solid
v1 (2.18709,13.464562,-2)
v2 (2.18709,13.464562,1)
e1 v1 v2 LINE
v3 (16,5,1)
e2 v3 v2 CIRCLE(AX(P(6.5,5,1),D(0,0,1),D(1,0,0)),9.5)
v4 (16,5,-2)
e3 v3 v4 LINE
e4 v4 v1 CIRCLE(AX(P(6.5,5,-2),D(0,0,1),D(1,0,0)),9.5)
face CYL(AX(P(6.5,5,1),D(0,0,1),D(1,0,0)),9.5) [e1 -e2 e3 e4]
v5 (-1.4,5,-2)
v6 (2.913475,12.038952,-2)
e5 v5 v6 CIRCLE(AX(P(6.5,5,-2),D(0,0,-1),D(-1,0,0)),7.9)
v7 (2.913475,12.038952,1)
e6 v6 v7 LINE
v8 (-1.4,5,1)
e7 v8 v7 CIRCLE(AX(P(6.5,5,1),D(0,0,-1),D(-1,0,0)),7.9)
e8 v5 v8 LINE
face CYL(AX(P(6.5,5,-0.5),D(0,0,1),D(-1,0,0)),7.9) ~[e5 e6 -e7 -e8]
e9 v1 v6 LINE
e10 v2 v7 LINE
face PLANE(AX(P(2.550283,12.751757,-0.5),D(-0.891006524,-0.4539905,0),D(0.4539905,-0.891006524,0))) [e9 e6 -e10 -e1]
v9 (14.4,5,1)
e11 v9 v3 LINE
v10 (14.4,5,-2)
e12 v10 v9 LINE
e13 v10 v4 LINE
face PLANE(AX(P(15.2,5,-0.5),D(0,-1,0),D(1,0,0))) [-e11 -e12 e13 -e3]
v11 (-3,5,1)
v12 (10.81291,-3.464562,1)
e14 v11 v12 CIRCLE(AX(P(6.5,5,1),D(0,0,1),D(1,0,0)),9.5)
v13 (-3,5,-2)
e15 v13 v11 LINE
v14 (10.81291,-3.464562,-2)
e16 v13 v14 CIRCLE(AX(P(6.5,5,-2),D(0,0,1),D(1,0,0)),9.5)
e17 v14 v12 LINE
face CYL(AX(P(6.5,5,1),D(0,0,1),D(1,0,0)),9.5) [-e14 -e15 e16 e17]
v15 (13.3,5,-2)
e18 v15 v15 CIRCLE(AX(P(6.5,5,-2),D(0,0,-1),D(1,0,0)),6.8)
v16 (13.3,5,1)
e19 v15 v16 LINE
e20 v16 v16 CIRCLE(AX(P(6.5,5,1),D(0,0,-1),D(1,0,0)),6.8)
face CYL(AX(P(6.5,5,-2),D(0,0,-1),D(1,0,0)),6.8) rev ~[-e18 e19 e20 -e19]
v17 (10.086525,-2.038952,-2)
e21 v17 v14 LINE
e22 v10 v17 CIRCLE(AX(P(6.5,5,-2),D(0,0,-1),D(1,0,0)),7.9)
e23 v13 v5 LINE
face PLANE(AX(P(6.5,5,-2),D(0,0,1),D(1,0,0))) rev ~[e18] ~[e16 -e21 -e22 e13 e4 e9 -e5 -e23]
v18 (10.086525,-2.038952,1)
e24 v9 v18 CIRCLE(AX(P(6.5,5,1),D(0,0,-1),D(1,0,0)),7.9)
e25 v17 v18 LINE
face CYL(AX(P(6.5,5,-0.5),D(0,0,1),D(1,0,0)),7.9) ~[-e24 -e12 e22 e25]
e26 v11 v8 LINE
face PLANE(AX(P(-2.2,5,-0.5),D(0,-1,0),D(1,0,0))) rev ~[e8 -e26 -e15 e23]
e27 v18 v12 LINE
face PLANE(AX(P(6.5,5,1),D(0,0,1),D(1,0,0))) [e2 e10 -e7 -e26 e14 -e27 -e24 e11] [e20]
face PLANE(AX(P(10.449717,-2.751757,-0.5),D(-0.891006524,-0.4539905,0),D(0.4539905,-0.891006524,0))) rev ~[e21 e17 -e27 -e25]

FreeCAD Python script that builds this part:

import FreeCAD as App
import Part
import Sketcher


def add_polygon(sketch, points):
    """Adds a closed chain of lines whose ends are joined by coincident constraints."""
    first, n = sketch.GeometryCount, len(points)
    for a, b in zip(points, points[1:] + points[:1]):
        sketch.addGeometry(Part.LineSegment(App.Vector(*a, 0), App.Vector(*b, 0)), False)
    for i in range(n):
        sketch.addConstraint(Sketcher.Constraint("Coincident", first + i, 2, first + (i + 1) % n, 1))

doc = App.newDocument("Part")
body = doc.addObject("PartDesign::Body", "Body")

sketch1 = body.newObject("Sketcher::SketchObject", "Sketch")
sketch1.AttachmentSupport = (doc.getObject("XY_Plane"), [""])
sketch1.MapMode = "FlatFace"
sketch1.AttachmentOffset = App.Placement(App.Vector(0, 0, 1), App.Rotation())
sketch1.addGeometry(Part.Circle(App.Vector(6, 5, 0), App.Vector(0, 0, 1), 10), False)
sketch1.addConstraint(Sketcher.Constraint("Diameter", 0, 19.0))
sketch1.addConstraint(Sketcher.Constraint("DistanceY", -1, 1, 0, 3, 5.0))
sketch1.addConstraint(Sketcher.Constraint("DistanceX", -1, 1, 0, 3, 6.5))
pad1 = body.newObject("PartDesign::Pad", "Pad")
pad1.Profile = sketch1
pad1.Length = 3
pad1.Reversed = True

sketch2 = body.newObject("Sketcher::SketchObject", "Sketch001")
sketch2.AttachmentSupport = (doc.getObject("XY_Plane"), [""])
sketch2.MapMode = "FlatFace"
sketch2.AttachmentOffset = App.Placement(App.Vector(0, 0, -2), App.Rotation())
sketch2.addGeometry(Part.Circle(App.Vector(6, 5, 0), App.Vector(0, 0, 1), 7), False)
sketch2.addConstraint(Sketcher.Constraint("Diameter", 0, 13.6))
sketch2.addConstraint(Sketcher.Constraint("DistanceY", -1, 1, 0, 3, 5.0))
sketch2.addConstraint(Sketcher.Constraint("DistanceX", -1, 1, 0, 3, 6.5))
pocket1 = body.newObject("PartDesign::Pocket", "Pocket")
pocket1.Profile = sketch2
pocket1.Length = 5
pocket1.Reversed = True

sketch3 = body.newObject("Sketcher::SketchObject", "Sketch002")
sketch3.AttachmentSupport = (doc.getObject("XZ_Plane"), [""])
sketch3.MapMode = "FlatFace"
sketch3.AttachmentOffset = App.Placement(App.Vector(0, 0, -5), App.Rotation())
add_polygon(sketch3, [(14.4, 1), (14.4, -2), (16, -2), (16, 1)])
sketch3.addGeometry(Part.LineSegment(App.Vector(6.5, -2, 0), App.Vector(6.5, 1, 0)), True)
sketch3.addConstraint(Sketcher.Constraint("Vertical", 0))
sketch3.addConstraint(Sketcher.Constraint("Horizontal", 1))
sketch3.addConstraint(Sketcher.Constraint("Vertical", 2))
sketch3.addConstraint(Sketcher.Constraint("Horizontal", 3))
sketch3.addConstraint(Sketcher.Constraint("Vertical", 4))
sketch3.addConstraint(Sketcher.Constraint("Horizontal", 1, 2, 4, 1))
sketch3.addConstraint(Sketcher.Constraint("Horizontal", 3, 2, 4, 2))
sketch3.addConstraint(Sketcher.Constraint("DistanceY", 0, 2, 0, 1, 3.0))
sketch3.addConstraint(Sketcher.Constraint("DistanceX", 1, 1, 1, 2, 1.6))
sketch3.addConstraint(Sketcher.Constraint("DistanceY", 0, 2, -1, 1, 2.0))
sketch3.addConstraint(Sketcher.Constraint("DistanceX", -1, 1, 1, 2, 16.0))
sketch3.addConstraint(Sketcher.Constraint("DistanceX", -1, 1, 4, 1, 6.5))
groove = body.newObject("PartDesign::Groove", "Groove")
groove.Profile = sketch3
groove.ReferenceAxis = (sketch3, ["Axis0"])
groove.Angle = 63
groove.Reversed = True

sketch4 = body.newObject("Sketcher::SketchObject", "Sketch003")
sketch4.AttachmentSupport = (doc.getObject("XZ_Plane"), [""])
sketch4.MapMode = "FlatFace"
sketch4.AttachmentOffset = App.Placement(App.Vector(0, 0, -5), App.Rotation())
add_polygon(sketch4, [(-3, 1), (-3, -2), (-1.4, -2), (-1.4, 1)])
sketch4.addGeometry(Part.LineSegment(App.Vector(6.5, -2, 0), App.Vector(6.5, 1, 0)), True)
sketch4.addConstraint(Sketcher.Constraint("Vertical", 0))
sketch4.addConstraint(Sketcher.Constraint("Horizontal", 1))
sketch4.addConstraint(Sketcher.Constraint("Vertical", 2))
sketch4.addConstraint(Sketcher.Constraint("Horizontal", 3))
sketch4.addConstraint(Sketcher.Constraint("Vertical", 4))
sketch4.addConstraint(Sketcher.Constraint("Horizontal", 1, 2, 4, 1))
sketch4.addConstraint(Sketcher.Constraint("Horizontal", 3, 2, 4, 2))
sketch4.addConstraint(Sketcher.Constraint("DistanceY", 0, 2, 0, 1, 3.0))
sketch4.addConstraint(Sketcher.Constraint("DistanceX", 1, 1, 1, 2, 1.6))
sketch4.addConstraint(Sketcher.Constraint("DistanceX", 0, 2, -1, 1, 3.0))
sketch4.addConstraint(Sketcher.Constraint("DistanceY", 0, 2, -1, 1, 2.0))
sketch4.addConstraint(Sketcher.Constraint("DistanceX", -1, 1, 4, 1, 6.5))
groove2 = body.newObject("PartDesign::Groove", "Groove001")
groove2.Profile = sketch4
groove2.ReferenceAxis = (sketch4, ["Axis0"])
groove2.Angle = 63
groove2.Reversed = True

doc.recompute()
